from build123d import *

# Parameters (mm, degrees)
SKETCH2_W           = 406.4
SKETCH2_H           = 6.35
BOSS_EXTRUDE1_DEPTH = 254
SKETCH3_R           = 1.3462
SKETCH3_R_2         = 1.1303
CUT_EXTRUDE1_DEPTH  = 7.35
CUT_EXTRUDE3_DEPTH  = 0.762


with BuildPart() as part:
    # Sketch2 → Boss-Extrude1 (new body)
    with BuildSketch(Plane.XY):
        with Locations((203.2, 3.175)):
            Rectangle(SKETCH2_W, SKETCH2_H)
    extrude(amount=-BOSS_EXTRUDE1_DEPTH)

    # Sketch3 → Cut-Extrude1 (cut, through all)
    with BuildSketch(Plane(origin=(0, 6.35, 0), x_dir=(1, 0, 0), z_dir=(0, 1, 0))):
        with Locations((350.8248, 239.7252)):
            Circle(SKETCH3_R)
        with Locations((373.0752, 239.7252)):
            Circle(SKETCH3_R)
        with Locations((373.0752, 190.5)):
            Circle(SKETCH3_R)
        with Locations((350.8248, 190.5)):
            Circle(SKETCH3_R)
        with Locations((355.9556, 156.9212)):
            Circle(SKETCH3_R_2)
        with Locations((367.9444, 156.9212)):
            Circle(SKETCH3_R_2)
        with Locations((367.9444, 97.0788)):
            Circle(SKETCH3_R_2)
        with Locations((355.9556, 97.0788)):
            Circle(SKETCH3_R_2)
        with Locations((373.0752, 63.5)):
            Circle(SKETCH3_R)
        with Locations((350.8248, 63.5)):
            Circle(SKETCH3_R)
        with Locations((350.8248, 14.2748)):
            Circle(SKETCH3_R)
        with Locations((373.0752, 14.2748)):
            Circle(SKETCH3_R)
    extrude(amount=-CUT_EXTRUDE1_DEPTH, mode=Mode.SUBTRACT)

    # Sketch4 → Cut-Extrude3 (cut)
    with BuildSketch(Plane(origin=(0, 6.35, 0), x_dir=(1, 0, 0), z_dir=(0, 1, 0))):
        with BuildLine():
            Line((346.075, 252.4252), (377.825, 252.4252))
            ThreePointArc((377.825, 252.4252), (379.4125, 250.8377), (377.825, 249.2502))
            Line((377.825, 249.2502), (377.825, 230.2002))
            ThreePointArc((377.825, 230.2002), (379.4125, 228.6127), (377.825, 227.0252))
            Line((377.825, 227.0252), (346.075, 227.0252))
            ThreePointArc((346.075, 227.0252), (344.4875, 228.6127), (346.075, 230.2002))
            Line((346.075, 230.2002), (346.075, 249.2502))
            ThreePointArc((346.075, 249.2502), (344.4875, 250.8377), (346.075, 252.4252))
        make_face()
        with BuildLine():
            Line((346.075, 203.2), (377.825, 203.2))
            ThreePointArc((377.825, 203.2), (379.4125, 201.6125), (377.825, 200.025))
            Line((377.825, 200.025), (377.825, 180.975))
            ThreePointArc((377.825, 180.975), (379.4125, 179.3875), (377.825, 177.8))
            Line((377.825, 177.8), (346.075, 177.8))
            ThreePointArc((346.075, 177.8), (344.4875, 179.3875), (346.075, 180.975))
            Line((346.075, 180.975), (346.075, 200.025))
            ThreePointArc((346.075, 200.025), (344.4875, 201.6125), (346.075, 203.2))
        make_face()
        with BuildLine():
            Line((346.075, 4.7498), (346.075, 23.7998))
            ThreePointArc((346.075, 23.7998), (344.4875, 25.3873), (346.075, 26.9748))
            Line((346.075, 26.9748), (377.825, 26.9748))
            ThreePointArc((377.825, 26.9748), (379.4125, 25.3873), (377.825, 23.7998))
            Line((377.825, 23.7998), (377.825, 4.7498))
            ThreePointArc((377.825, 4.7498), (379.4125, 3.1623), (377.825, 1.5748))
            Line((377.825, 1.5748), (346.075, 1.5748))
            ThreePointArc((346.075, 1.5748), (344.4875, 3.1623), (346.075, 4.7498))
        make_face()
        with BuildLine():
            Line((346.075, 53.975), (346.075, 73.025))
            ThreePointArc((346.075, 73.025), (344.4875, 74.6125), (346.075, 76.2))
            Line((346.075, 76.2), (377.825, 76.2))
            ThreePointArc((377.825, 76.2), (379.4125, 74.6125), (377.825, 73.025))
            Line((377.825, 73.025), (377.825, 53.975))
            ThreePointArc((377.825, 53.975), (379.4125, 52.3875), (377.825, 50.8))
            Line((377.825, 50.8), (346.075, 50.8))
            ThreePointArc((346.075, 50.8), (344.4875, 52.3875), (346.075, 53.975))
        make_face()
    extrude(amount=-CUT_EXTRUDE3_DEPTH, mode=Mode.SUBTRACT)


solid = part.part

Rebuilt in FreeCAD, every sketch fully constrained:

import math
import FreeCAD as App
import Part
import Sketcher
Q = App.Units.Quantity


def add_polygon(sketch, points):
    """Adds a closed chain of lines whose ends are joined by coincident constraints."""
    first, n = sketch.GeometryCount, len(points)
    for a, b in zip(points, points[1:] + points[:1]):
        sketch.addGeometry(Part.LineSegment(App.Vector(*a, 0), App.Vector(*b, 0)), False)
    for i in range(n):
        sketch.addConstraint(Sketcher.Constraint("Coincident", first + i, 2, first + (i + 1) % n, 1))

doc = App.newDocument("Part")
body = doc.addObject("PartDesign::Body", "Body")

# Sketch on XY plane
sketch1 = body.newObject("Sketcher::SketchObject", "Sketch")
sketch1.AttachmentSupport = (doc.getObject("XY_Plane"), [""])
sketch1.MapMode = "FlatFace"
add_polygon(sketch1, [(0, 6.35), (0, 0), (406.4, 0), (406.4, 6.35)])  # lines 0-3
sketch1.addConstraint(Sketcher.Constraint("Vertical", 0))
sketch1.addConstraint(Sketcher.Constraint("Horizontal", 1))
sketch1.addConstraint(Sketcher.Constraint("Vertical", 2))
sketch1.addConstraint(Sketcher.Constraint("Horizontal", 3))
sketch1.addConstraint(Sketcher.Constraint("Coincident", 0, 2, -1, 1))
sketch1.addConstraint(Sketcher.Constraint("DistanceX", 1, 1, 1, 2, Q("16 in")))
sketch1.addConstraint(Sketcher.Constraint("DistanceY", 0, 2, 0, 1, Q("0.25 in")))
pad1 = body.newObject("PartDesign::Pad", "Pad")
pad1.Profile = sketch1
pad1.Length = Q("10 in")
pad1.Reversed = True

# Sketch on XZ plane
sketch2 = body.newObject("Sketcher::SketchObject", "Sketch001")
sketch2.AttachmentSupport = (doc.getObject("XZ_Plane"), [""])
sketch2.MapMode = "FlatFace"
sketch2.AttachmentOffset = App.Placement(App.Vector(0, 0, -0.25 * 25.4), App.Rotation())
sketch2.addGeometry(Part.Circle(App.Vector(350.8248, -239.7252, 0), App.Vector(0, 0, 1), 1.3462), False)
sketch2.addGeometry(Part.Circle(App.Vector(373.0752, -239.7252, 0), App.Vector(0, 0, 1), 1.3462), False)
sketch2.addGeometry(Part.Circle(App.Vector(373.0752, -190.5, 0), App.Vector(0, 0, 1), 1.3462), False)
sketch2.addGeometry(Part.Circle(App.Vector(350.8248, -190.5, 0), App.Vector(0, 0, 1), 1.3462), False)
sketch2.addGeometry(Part.Circle(App.Vector(355.9556, -156.9212, 0), App.Vector(0, 0, 1), 1.1303), False)
sketch2.addGeometry(Part.Circle(App.Vector(367.9444, -156.9212, 0), App.Vector(0, 0, 1), 1.1303), False)
sketch2.addGeometry(Part.Circle(App.Vector(367.9444, -97.0788, 0), App.Vector(0, 0, 1), 1.1303), False)
sketch2.addGeometry(Part.Circle(App.Vector(355.9556, -97.0788, 0), App.Vector(0, 0, 1), 1.1303), False)
sketch2.addGeometry(Part.Circle(App.Vector(373.0752, -63.5, 0), App.Vector(0, 0, 1), 1.3462), False)
sketch2.addGeometry(Part.Circle(App.Vector(350.8248, -63.5, 0), App.Vector(0, 0, 1), 1.3462), False)
sketch2.addGeometry(Part.Circle(App.Vector(350.8248, -14.2748, 0), App.Vector(0, 0, 1), 1.3462), False)
sketch2.addGeometry(Part.Circle(App.Vector(373.0752, -14.2748, 0), App.Vector(0, 0, 1), 1.3462), False)
sketch2.addConstraint(Sketcher.Constraint("Equal", 0, 1))
sketch2.addConstraint(Sketcher.Constraint("Equal", 1, 2))
sketch2.addConstraint(Sketcher.Constraint("Equal", 2, 3))
sketch2.addConstraint(Sketcher.Constraint("Equal", 4, 5))
sketch2.addConstraint(Sketcher.Constraint("Equal", 5, 6))
sketch2.addConstraint(Sketcher.Constraint("Equal", 6, 7))
sketch2.addConstraint(Sketcher.Constraint("Equal", 3, 8))
sketch2.addConstraint(Sketcher.Constraint("Equal", 8, 9))
sketch2.addConstraint(Sketcher.Constraint("Equal", 9, 10))
sketch2.addConstraint(Sketcher.Constraint("Equal", 10, 11))
sketch2.addConstraint(Sketcher.Constraint("Horizontal", 0, 3, 1, 3))
sketch2.addConstraint(Sketcher.Constraint("Horizontal", 2, 3, 3, 3))
sketch2.addConstraint(Sketcher.Constraint("Horizontal", 4, 3, 5, 3))
sketch2.addConstraint(Sketcher.Constraint("Horizontal", 6, 3, 7, 3))
sketch2.addConstraint(Sketcher.Constraint("Horizontal", 8, 3, 9, 3))
sketch2.addConstraint(Sketcher.Constraint("Horizontal", 10, 3, 11, 3))
sketch2.addConstraint(Sketcher.Constraint("Vertical", 1, 3, 2, 3))
sketch2.addConstraint(Sketcher.Constraint("Vertical", 0, 3, 3, 3))
sketch2.addConstraint(Sketcher.Constraint("Vertical", 5, 3, 6, 3))
sketch2.addConstraint(Sketcher.Constraint("Vertical", 4, 3, 7, 3))
sketch2.addConstraint(Sketcher.Constraint("Vertical", 2, 3, 8, 3))
sketch2.addConstraint(Sketcher.Constraint("Vertical", 3, 3, 9, 3))
sketch2.addConstraint(Sketcher.Constraint("Vertical", 9, 3, 10, 3))
sketch2.addConstraint(Sketcher.Constraint("Vertical", 8, 3, 11, 3))
sketch2.addConstraint(Sketcher.Constraint("Diameter", 0, Q("0.106 in")))
sketch2.addConstraint(Sketcher.Constraint("Diameter", 4, Q("0.089 in")))
sketch2.addConstraint(Sketcher.Constraint("DistanceY", 2, 3, 8, 3, Q("5 in")))
sketch2.addConstraint(Sketcher.Constraint("DistanceY", 2, 3, -1, 1, Q("7.5 in")))
sketch2.addConstraint(Sketcher.Constraint("DistanceY", 0, 3, 4, 3, Q("3.26 in")))
sketch2.addConstraint(Sketcher.Constraint("DistanceY", 7, 3, 10, 3, Q("3.26 in")))
sketch2.addConstraint(Sketcher.Constraint("DistanceX", -1, 1, 0, 3, Q("13.812 in")))
sketch2.addConstraint(Sketcher.Constraint("DistanceY", 0, 3, -1, 1, Q("9.438 in")))
sketch2.addConstraint(Sketcher.Constraint("DistanceX", -1, 1, 1, 3, Q("14.688 in")))
sketch2.addConstraint(Sketcher.Constraint("DistanceX", -1, 1, 4, 3, Q("14.014 in")))
sketch2.addConstraint(Sketcher.Constraint("DistanceX", -1, 1, 5, 3, Q("14.486 in")))
sketch2.addConstraint(Sketcher.Constraint("DistanceY", 6, 3, -1, 1, Q("3.822 in")))
pocket1 = body.newObject("PartDesign::Pocket", "Pocket")
pocket1.Profile = sketch2
pocket1.Type = "ThroughAll"
pocket1.Reversed = True

# Sketch on XZ plane
sketch3 = body.newObject("Sketcher::SketchObject", "Sketch002")
sketch3.AttachmentSupport = (doc.getObject("XZ_Plane"), [""])
sketch3.MapMode = "FlatFace"
sketch3.AttachmentOffset = App.Placement(App.Vector(0, 0, -0.25 * 25.4), App.Rotation())
sketch3.addGeometry(Part.LineSegment(App.Vector(377.825, -252.4252, 0), App.Vector(346.075, -252.4252, 0)), False)
sketch3.addGeometry(Part.ArcOfCircle(Part.Circle(App.Vector(346.075, -250.8377, 0), App.Vector(0, 0, 1), 1.5875), math.radians(90), math.radians(270)), False)
sketch3.addGeometry(Part.LineSegment(App.Vector(346.075, -249.2502, 0), App.Vector(346.075, -230.2002, 0)), False)
sketch3.addGeometry(Part.ArcOfCircle(Part.Circle(App.Vector(346.075, -228.6127, 0), App.Vector(0, 0, 1), 1.5875), math.radians(90), math.radians(270)), False)
sketch3.addGeometry(Part.LineSegment(App.Vector(346.075, -227.0252, 0), App.Vector(377.825, -227.0252, 0)), False)
sketch3.addGeometry(Part.ArcOfCircle(Part.Circle(App.Vector(377.825, -228.6127, 0), App.Vector(0, 0, 1), 1.5875), math.radians(-90), math.radians(90)), False)
sketch3.addGeometry(Part.LineSegment(App.Vector(377.825, -230.2002, 0), App.Vector(377.825, -249.2502, 0)), False)
sketch3.addGeometry(Part.ArcOfCircle(Part.Circle(App.Vector(377.825, -250.8377, 0), App.Vector(0, 0, 1), 1.5875), math.radians(-90), math.radians(90)), False)
sketch3.addGeometry(Part.LineSegment(App.Vector(377.825, -203.2, 0), App.Vector(346.075, -203.2, 0)), False)
sketch3.addGeometry(Part.ArcOfCircle(Part.Circle(App.Vector(346.075, -201.6125, 0), App.Vector(0, 0, 1), 1.5875), math.radians(90), math.radians(270)), False)
sketch3.addGeometry(Part.LineSegment(App.Vector(346.075, -200.025, 0), App.Vector(346.075, -180.975, 0)), False)
sketch3.addGeometry(Part.ArcOfCircle(Part.Circle(App.Vector(346.075, -179.3875, 0), App.Vector(0, 0, 1), 1.5875), math.radians(90), math.radians(270)), False)
sketch3.addGeometry(Part.LineSegment(App.Vector(346.075, -177.8, 0), App.Vector(377.825, -177.8, 0)), False)
sketch3.addGeometry(Part.ArcOfCircle(Part.Circle(App.Vector(377.825, -179.3875, 0), App.Vector(0, 0, 1), 1.5875), math.radians(-90), math.radians(90)), False)
sketch3.addGeometry(Part.LineSegment(App.Vector(377.825, -180.975, 0), App.Vector(377.825, -200.025, 0)), False)
sketch3.addGeometry(Part.ArcOfCircle(Part.Circle(App.Vector(377.825, -201.6125, 0), App.Vector(0, 0, 1), 1.5875), math.radians(-90), math.radians(90)), False)
sketch3.addGeometry(Part.LineSegment(App.Vector(346.075, -23.7998, 0), App.Vector(346.075, -4.7498, 0)), False)
sketch3.addGeometry(Part.ArcOfCircle(Part.Circle(App.Vector(346.075, -3.1623, 0), App.Vector(0, 0, 1), 1.5875), math.radians(90), math.radians(270)), False)
sketch3.addGeometry(Part.LineSegment(App.Vector(346.075, -1.5748, 0), App.Vector(377.825, -1.5748, 0)), False)
sketch3.addGeometry(Part.ArcOfCircle(Part.Circle(App.Vector(377.825, -3.1623, 0), App.Vector(0, 0, 1), 1.5875), math.radians(-90), math.radians(90)), False)
sketch3.addGeometry(Part.LineSegment(App.Vector(377.825, -4.7498, 0), App.Vector(377.825, -23.7998, 0)), False)
sketch3.addGeometry(Part.ArcOfCircle(Part.Circle(App.Vector(377.825, -25.3873, 0), App.Vector(0, 0, 1), 1.5875), math.radians(-90), math.radians(90)), False)
sketch3.addGeometry(Part.LineSegment(App.Vector(377.825, -26.9748, 0), App.Vector(346.075, -26.9748, 0)), False)
sketch3.addGeometry(Part.ArcOfCircle(Part.Circle(App.Vector(346.075, -25.3873, 0), App.Vector(0, 0, 1), 1.5875), math.radians(90), math.radians(270)), False)
sketch3.addGeometry(Part.LineSegment(App.Vector(346.075, -73.025, 0), App.Vector(346.075, -53.975, 0)), False)
sketch3.addGeometry(Part.ArcOfCircle(Part.Circle(App.Vector(346.075, -52.3875, 0), App.Vector(0, 0, 1), 1.5875), math.radians(90), math.radians(270)), False)
sketch3.addGeometry(Part.LineSegment(App.Vector(346.075, -50.8, 0), App.Vector(377.825, -50.8, 0)), False)
sketch3.addGeometry(Part.ArcOfCircle(Part.Circle(App.Vector(377.825, -52.3875, 0), App.Vector(0, 0, 1), 1.5875), math.radians(-90), math.radians(90)), False)
sketch3.addGeometry(Part.LineSegment(App.Vector(377.825, -53.975, 0), App.Vector(377.825, -73.025, 0)), False)
sketch3.addGeometry(Part.ArcOfCircle(Part.Circle(App.Vector(377.825, -74.6125, 0), App.Vector(0, 0, 1), 1.5875), math.radians(-90), math.radians(90)), False)
sketch3.addGeometry(Part.LineSegment(App.Vector(377.825, -76.2, 0), App.Vector(346.075, -76.2, 0)), False)
sketch3.addGeometry(Part.ArcOfCircle(Part.Circle(App.Vector(346.075, -74.6125, 0), App.Vector(0, 0, 1), 1.5875), math.radians(90), math.radians(270)), False)
sketch3.addConstraint(Sketcher.Constraint("Tangent", 0, 2, 1, 2))
sketch3.addConstraint(Sketcher.Constraint("Coincident", 1, 1, 2, 1))
sketch3.addConstraint(Sketcher.Constraint("Coincident", 2, 2, 3, 2))
sketch3.addConstraint(Sketcher.Constraint("Tangent", 3, 1, 4, 1))
sketch3.addConstraint(Sketcher.Constraint("Tangent", 4, 2, 5, 2))
sketch3.addConstraint(Sketcher.Constraint("Coincident", 5, 1, 6, 1))
sketch3.addConstraint(Sketcher.Constraint("Coincident", 6, 2, 7, 2))
sketch3.addConstraint(Sketcher.Constraint("Tangent", 7, 1, 0, 1))
sketch3.addConstraint(Sketcher.Constraint("Tangent", 8, 2, 9, 2))
sketch3.addConstraint(Sketcher.Constraint("Coincident", 9, 1, 10, 1))
sketch3.addConstraint(Sketcher.Constraint("Coincident", 10, 2, 11, 2))
sketch3.addConstraint(Sketcher.Constraint("Tangent", 11, 1, 12, 1))
sketch3.addConstraint(Sketcher.Constraint("Tangent", 12, 2, 13, 2))
sketch3.addConstraint(Sketcher.Constraint("Coincident", 13, 1, 14, 1))
sketch3.addConstraint(Sketcher.Constraint("Coincident", 14, 2, 15, 2))
sketch3.addConstraint(Sketcher.Constraint("Tangent", 15, 1, 8, 1))
sketch3.addConstraint(Sketcher.Constraint("Coincident", 16, 2, 17, 2))
sketch3.addConstraint(Sketcher.Constraint("Tangent", 17, 1, 18, 1))
sketch3.addConstraint(Sketcher.Constraint("Tangent", 18, 2, 19, 2))
sketch3.addConstraint(Sketcher.Constraint("Coincident", 19, 1, 20, 1))
sketch3.addConstraint(Sketcher.Constraint("Coincident", 20, 2, 21, 2))
sketch3.addConstraint(Sketcher.Constraint("Tangent", 21, 1, 22, 1))
sketch3.addConstraint(Sketcher.Constraint("Tangent", 22, 2, 23, 2))
sketch3.addConstraint(Sketcher.Constraint("Coincident", 23, 1, 16, 1))
sketch3.addConstraint(Sketcher.Constraint("Coincident", 24, 2, 25, 2))
sketch3.addConstraint(Sketcher.Constraint("Tangent", 25, 1, 26, 1))
sketch3.addConstraint(Sketcher.Constraint("Tangent", 26, 2, 27, 2))
sketch3.addConstraint(Sketcher.Constraint("Coincident", 27, 1, 28, 1))
sketch3.addConstraint(Sketcher.Constraint("Coincident", 28, 2, 29, 2))
sketch3.addConstraint(Sketcher.Constraint("Tangent", 29, 1, 30, 1))
sketch3.addConstraint(Sketcher.Constraint("Tangent", 30, 2, 31, 2))
sketch3.addConstraint(Sketcher.Constraint("Coincident", 31, 1, 24, 1))
sketch3.addConstraint(Sketcher.Constraint("Horizontal", 0))
sketch3.addConstraint(Sketcher.Constraint("Vertical", 2))
sketch3.addConstraint(Sketcher.Constraint("Horizontal", 4))
sketch3.addConstraint(Sketcher.Constraint("Vertical", 6))
sketch3.addConstraint(Sketcher.Constraint("Horizontal", 8))
sketch3.addConstraint(Sketcher.Constraint("Vertical", 10))
sketch3.addConstraint(Sketcher.Constraint("Horizontal", 12))
sketch3.addConstraint(Sketcher.Constraint("Vertical", 14))
sketch3.addConstraint(Sketcher.Constraint("Vertical", 16))
sketch3.addConstraint(Sketcher.Constraint("Horizontal", 18))
sketch3.addConstraint(Sketcher.Constraint("Vertical", 20))
sketch3.addConstraint(Sketcher.Constraint("Horizontal", 22))
sketch3.addConstraint(Sketcher.Constraint("Vertical", 24))
sketch3.addConstraint(Sketcher.Constraint("Horizontal", 26))
sketch3.addConstraint(Sketcher.Constraint("Vertical", 28))
sketch3.addConstraint(Sketcher.Constraint("Horizontal", 30))
sketch3.addConstraint(Sketcher.Constraint("Equal", 1, 3))
sketch3.addConstraint(Sketcher.Constraint("Equal", 3, 5))
sketch3.addConstraint(Sketcher.Constraint("Equal", 5, 7))
sketch3.addConstraint(Sketcher.Constraint("Equal", 7, 9))
sketch3.addConstraint(Sketcher.Constraint("Equal", 9, 11))
sketch3.addConstraint(Sketcher.Constraint("Equal", 11, 13))
sketch3.addConstraint(Sketcher.Constraint("Equal", 13, 15))
sketch3.addConstraint(Sketcher.Constraint("Equal", 15, 17))
sketch3.addConstraint(Sketcher.Constraint("Equal", 17, 19))
sketch3.addConstraint(Sketcher.Constraint("Equal", 19, 21))
sketch3.addConstraint(Sketcher.Constraint("Equal", 21, 23))
sketch3.addConstraint(Sketcher.Constraint("Equal", 23, 25))
sketch3.addConstraint(Sketcher.Constraint("Equal", 25, 27))
sketch3.addConstraint(Sketcher.Constraint("Equal", 27, 29))
sketch3.addConstraint(Sketcher.Constraint("Equal", 29, 31))
sketch3.addConstraint(Sketcher.Constraint("Vertical", 1, 3, 3, 3))
sketch3.addConstraint(Sketcher.Constraint("Vertical", 5, 3, 7, 3))
sketch3.addConstraint(Sketcher.Constraint("Vertical", 3, 3, 9, 3))
sketch3.addConstraint(Sketcher.Constraint("Vertical", 9, 3, 11, 3))
sketch3.addConstraint(Sketcher.Constraint("Vertical", 7, 3, 13, 3))
sketch3.addConstraint(Sketcher.Constraint("Vertical", 13, 3, 15, 3))
sketch3.addConstraint(Sketcher.Constraint("Vertical", 11, 3, 17, 3))
sketch3.addConstraint(Sketcher.Constraint("Vertical", 15, 3, 19, 3))
sketch3.addConstraint(Sketcher.Constraint("Vertical", 19, 3, 21, 3))
sketch3.addConstraint(Sketcher.Constraint("Vertical", 17, 3, 23, 3))
sketch3.addConstraint(Sketcher.Constraint("Vertical", 23, 3, 25, 3))
sketch3.addConstraint(Sketcher.Constraint("Vertical", 21, 3, 27, 3))
sketch3.addConstraint(Sketcher.Constraint("Vertical", 27, 3, 29, 3))
sketch3.addConstraint(Sketcher.Constraint("Vertical", 25, 3, 31, 3))
sketch3.addConstraint(Sketcher.Constraint("Vertical", 0, 2, 1, 1))
sketch3.addConstraint(Sketcher.Constraint("Vertical", 4, 2, 5, 1))
sketch3.addConstraint(Sketcher.Constraint("Vertical", 8, 2, 9, 1))
sketch3.addConstraint(Sketcher.Constraint("Vertical", 12, 2, 13, 1))
sketch3.addConstraint(Sketcher.Constraint("Vertical", 11, 1, 16, 2))
sketch3.addConstraint(Sketcher.Constraint("Vertical", 18, 2, 19, 1))
sketch3.addConstraint(Sketcher.Constraint("Vertical", 23, 1, 24, 2))
sketch3.addConstraint(Sketcher.Constraint("Vertical", 26, 2, 27, 1))
sketch3.addConstraint(Sketcher.Constraint("Equal", 6, 10))
sketch3.addConstraint(Sketcher.Constraint("Equal", 14, 16))
sketch3.addConstraint(Sketcher.Constraint("Equal", 20, 24))
sketch3.addConstraint(Sketcher.Constraint("DistanceY", 8, 2, -1, 1, Q("8 in")))
sketch3.addConstraint(Sketcher.Constraint("DistanceY", 11, 1, -1, 1, Q("7 in")))
sketch3.addConstraint(Sketcher.Constraint("DistanceY", 25, 1, -1, 1, Q("2 in")))
sketch3.addConstraint(Sketcher.Constraint("Radius", 1, Q("0.0625 in")))
sketch3.addConstraint(Sketcher.Constraint("DistanceX", 0, 2, 0, 1, Q("1.25 in")))
sketch3.addConstraint(Sketcher.Constraint("DistanceX", -1, 1, 1, 3, Q("13.625 in")))
sketch3.addConstraint(Sketcher.Constraint("DistanceY", 0, 2, -1, 1, Q("9.938 in")))
sketch3.addConstraint(Sketcher.Constraint("DistanceY", 16, 2, -1, 1, Q("0.187 in")))
pocket2 = body.newObject("PartDesign::Pocket", "Pocket001")
pocket2.Profile = sketch3
pocket2.Length = Q("0.03 in")
pocket2.Reversed = True

doc.recompute()
